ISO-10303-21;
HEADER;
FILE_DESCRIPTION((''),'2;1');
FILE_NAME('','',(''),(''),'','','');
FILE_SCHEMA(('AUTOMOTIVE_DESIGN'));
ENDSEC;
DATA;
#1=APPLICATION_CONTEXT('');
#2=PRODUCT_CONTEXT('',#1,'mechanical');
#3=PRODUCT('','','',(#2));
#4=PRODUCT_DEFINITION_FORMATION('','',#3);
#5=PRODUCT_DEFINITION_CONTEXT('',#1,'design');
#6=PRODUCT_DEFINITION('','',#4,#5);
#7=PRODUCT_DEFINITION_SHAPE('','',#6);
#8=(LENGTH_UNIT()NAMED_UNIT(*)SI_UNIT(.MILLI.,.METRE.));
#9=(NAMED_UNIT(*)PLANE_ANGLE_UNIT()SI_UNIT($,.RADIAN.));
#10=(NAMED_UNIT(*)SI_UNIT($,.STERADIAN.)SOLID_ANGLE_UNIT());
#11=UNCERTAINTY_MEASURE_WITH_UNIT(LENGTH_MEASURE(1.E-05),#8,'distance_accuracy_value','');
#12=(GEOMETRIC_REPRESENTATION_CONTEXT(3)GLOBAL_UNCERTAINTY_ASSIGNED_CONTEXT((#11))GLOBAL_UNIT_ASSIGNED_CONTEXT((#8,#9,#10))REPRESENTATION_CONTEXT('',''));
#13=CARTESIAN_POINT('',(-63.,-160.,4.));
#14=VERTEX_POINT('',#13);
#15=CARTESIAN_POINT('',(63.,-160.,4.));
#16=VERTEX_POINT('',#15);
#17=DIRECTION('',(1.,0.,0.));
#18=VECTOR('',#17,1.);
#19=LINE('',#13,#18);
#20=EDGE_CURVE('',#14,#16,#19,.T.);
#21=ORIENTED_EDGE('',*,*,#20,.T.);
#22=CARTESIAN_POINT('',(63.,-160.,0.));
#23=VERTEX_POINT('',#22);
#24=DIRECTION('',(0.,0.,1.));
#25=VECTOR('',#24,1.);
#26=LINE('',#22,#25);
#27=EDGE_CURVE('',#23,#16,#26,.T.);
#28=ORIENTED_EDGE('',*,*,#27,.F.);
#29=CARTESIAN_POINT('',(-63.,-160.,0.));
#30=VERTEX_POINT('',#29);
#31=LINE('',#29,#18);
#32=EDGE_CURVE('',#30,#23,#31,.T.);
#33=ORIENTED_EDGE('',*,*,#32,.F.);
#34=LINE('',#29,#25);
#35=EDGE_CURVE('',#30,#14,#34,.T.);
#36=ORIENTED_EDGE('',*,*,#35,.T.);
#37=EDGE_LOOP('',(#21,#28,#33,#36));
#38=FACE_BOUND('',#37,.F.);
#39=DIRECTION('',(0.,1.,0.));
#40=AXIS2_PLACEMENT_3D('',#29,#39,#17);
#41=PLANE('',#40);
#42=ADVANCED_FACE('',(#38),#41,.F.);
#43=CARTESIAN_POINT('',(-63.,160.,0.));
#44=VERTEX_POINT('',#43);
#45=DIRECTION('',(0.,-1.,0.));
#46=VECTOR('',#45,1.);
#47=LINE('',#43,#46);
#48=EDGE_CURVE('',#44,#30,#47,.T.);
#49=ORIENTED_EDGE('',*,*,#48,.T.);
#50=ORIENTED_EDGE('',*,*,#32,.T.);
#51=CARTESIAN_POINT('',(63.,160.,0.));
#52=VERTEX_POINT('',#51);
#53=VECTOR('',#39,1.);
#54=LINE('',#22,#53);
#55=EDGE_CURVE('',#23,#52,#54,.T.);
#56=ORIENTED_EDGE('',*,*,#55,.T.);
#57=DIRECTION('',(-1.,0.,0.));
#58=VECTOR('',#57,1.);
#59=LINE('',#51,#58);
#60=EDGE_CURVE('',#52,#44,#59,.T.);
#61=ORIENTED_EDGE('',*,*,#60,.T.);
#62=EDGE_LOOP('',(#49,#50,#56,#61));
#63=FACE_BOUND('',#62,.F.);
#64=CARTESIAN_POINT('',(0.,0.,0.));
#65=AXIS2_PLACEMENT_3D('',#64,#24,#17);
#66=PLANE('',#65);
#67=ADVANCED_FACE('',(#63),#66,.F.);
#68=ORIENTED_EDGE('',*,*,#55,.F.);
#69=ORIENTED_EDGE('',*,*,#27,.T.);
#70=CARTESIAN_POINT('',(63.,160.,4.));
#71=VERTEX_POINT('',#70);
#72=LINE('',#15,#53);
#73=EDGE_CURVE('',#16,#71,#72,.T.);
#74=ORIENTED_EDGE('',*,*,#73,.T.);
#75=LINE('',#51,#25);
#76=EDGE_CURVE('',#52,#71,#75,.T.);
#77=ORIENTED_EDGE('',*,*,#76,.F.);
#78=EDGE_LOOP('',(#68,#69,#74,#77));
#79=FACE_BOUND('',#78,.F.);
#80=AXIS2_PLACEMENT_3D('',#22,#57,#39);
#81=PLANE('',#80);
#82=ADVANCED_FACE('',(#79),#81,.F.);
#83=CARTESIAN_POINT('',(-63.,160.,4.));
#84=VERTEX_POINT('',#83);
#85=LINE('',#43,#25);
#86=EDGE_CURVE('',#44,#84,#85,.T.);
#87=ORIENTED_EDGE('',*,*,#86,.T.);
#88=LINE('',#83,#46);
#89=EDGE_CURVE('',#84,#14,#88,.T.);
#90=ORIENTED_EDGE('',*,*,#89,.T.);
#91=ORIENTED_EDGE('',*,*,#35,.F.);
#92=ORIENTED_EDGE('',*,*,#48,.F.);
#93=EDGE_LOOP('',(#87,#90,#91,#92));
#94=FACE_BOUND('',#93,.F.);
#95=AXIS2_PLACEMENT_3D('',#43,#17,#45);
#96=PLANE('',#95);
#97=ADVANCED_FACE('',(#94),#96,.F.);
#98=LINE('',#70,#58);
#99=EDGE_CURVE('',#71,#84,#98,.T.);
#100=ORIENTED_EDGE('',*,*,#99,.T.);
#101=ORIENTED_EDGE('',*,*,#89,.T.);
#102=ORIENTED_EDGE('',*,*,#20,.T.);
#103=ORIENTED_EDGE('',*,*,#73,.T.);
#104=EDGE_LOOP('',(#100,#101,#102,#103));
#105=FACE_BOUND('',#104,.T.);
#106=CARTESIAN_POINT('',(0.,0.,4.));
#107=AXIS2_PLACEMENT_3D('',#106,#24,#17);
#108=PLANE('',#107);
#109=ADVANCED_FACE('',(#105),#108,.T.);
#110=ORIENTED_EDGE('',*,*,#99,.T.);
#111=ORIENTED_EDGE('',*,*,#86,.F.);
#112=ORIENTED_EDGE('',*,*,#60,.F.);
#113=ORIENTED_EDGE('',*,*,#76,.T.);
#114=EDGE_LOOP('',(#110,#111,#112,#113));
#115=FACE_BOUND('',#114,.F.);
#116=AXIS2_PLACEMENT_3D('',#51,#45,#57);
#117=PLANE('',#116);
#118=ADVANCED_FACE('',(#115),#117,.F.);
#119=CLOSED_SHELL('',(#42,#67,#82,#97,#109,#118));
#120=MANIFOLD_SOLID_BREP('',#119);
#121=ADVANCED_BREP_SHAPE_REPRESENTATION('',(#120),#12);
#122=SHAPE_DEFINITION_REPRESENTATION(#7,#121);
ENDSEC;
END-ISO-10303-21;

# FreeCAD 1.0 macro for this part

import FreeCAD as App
import Part
import Sketcher

doc = App.newDocument("Part")
body = doc.addObject("PartDesign::Body", "Body")

# Sketch on XY plane
sketch1 = body.newObject("Sketcher::SketchObject", "Sketch")
sketch1.AttachmentSupport = (doc.getObject("XY_Plane"), [""])
sketch1.MapMode = "FlatFace"
sketch1.addGeometry(Part.LineSegment(App.Vector(-63, 160, 0), App.Vector(-63, -160, 0)), False)
sketch1.addGeometry(Part.LineSegment(App.Vector(-63, -160, 0), App.Vector(63, -160, 0)), False)
sketch1.addGeometry(Part.LineSegment(App.Vector(63, -160, 0), App.Vector(63, 160, 0)), False)
sketch1.addGeometry(Part.LineSegment(App.Vector(63, 160, 0), App.Vector(-63, 160, 0)), False)
sketch1.addConstraint(Sketcher.Constraint("Coincident", 0, 2, 1, 1))
sketch1.addConstraint(Sketcher.Constraint("Coincident", 1, 2, 2, 1))
sketch1.addConstraint(Sketcher.Constraint("Coincident", 2, 2, 3, 1))
sketch1.addConstraint(Sketcher.Constraint("Coincident", 3, 2, 0, 1))
sketch1.addConstraint(Sketcher.Constraint("Vertical", 0))
sketch1.addConstraint(Sketcher.Constraint("Horizontal", 1))
sketch1.addConstraint(Sketcher.Constraint("Vertical", 2))
sketch1.addConstraint(Sketcher.Constraint("Horizontal", 3))
sketch1.addConstraint(Sketcher.Constraint("Symmetric", 0, 2, 2, 2, -1, 1))
sketch1.addConstraint(Sketcher.Constraint("DistanceX", 1, 1, 1, 2, 126.0))
sketch1.addConstraint(Sketcher.Constraint("DistanceY", 0, 2, 0, 1, 320.0))
pad1 = body.newObject("PartDesign::Pad", "Pad")
pad1.Profile = sketch1
pad1.Length = 4

doc.recompute()
